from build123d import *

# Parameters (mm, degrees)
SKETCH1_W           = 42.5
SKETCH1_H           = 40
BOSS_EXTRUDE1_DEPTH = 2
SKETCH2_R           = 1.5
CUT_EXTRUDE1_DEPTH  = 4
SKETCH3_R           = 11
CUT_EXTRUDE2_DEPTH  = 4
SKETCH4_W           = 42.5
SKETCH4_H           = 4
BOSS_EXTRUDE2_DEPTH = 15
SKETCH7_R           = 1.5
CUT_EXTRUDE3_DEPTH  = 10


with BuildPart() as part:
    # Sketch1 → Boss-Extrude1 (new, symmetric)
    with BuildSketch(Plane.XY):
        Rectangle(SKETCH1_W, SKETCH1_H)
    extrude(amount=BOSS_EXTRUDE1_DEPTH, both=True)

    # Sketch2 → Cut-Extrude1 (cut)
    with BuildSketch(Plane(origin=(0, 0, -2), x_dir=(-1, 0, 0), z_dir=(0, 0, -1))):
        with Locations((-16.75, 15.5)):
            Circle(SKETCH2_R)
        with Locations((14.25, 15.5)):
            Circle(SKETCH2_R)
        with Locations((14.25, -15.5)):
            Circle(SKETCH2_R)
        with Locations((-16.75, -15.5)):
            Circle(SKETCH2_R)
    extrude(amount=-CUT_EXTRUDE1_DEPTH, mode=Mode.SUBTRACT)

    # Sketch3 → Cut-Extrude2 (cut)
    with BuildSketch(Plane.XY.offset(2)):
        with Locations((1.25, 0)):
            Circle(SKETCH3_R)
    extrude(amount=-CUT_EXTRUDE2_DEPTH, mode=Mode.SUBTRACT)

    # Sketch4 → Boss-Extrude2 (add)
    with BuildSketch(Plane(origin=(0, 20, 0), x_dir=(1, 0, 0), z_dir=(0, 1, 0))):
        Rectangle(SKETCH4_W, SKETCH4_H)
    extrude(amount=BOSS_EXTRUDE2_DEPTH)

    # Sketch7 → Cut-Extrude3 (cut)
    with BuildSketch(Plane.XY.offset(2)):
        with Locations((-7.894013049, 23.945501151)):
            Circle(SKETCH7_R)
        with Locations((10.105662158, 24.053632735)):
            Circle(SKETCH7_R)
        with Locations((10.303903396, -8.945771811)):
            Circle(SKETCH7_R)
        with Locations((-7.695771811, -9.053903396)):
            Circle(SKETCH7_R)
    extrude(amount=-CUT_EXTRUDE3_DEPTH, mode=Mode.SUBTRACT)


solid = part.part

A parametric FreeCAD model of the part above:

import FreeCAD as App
import Part
import Sketcher

V = App.Vector
Q = App.Units.Quantity


def add_polygon(sketch, points):
    """Adds a closed chain of lines whose ends are joined by coincident constraints."""
    first, n = sketch.GeometryCount, len(points)
    for a, b in zip(points, points[1:] + points[:1]):
        sketch.addGeometry(Part.LineSegment(App.Vector(*a, 0), App.Vector(*b, 0)), False)
    for i in range(n):
        sketch.addConstraint(Sketcher.Constraint("Coincident", first + i, 2, first + (i + 1) % n, 1))

doc = App.newDocument("Part")
body = doc.addObject("PartDesign::Body", "Body")

# Sketch on XY plane
sketch1 = doc.addObject("Sketcher::SketchObject", "Sketch")
body.addObject(sketch1)
sketch1.AttachmentSupport = (doc.XY_Plane, [""])
sketch1.MapMode = "FlatFace"
add_polygon(sketch1, [(-21.25, 20), (-21.25, -20), (21.25, -20), (21.25, 20)])  # lines 0-3
sketch1.addConstraint(Sketcher.Constraint("Vertical", 0))
sketch1.addConstraint(Sketcher.Constraint("Horizontal", 1))
sketch1.addConstraint(Sketcher.Constraint("Vertical", 2))
sketch1.addConstraint(Sketcher.Constraint("Horizontal", 3))
sketch1.addConstraint(Sketcher.Constraint("Symmetric", 0, 2, 2, 2, -1, 1))
sketch1.addConstraint(Sketcher.Constraint("DistanceY", 0, 2, 0, 1, Q("40 mm")))
sketch1.addConstraint(Sketcher.Constraint("DistanceX", 1, 1, 1, 2, Q("42.5 mm")))
pad1 = doc.addObject("PartDesign::Pad", "Pad")
body.addObject(pad1)
pad1.Profile = sketch1
pad1.Length = 4
pad1.Midplane = True

# Sketch on XY plane
sketch2 = doc.addObject("Sketcher::SketchObject", "Sketch001")
body.addObject(sketch2)
sketch2.AttachmentSupport = (doc.XY_Plane, [""])
sketch2.MapMode = "FlatFace"
sketch2.AttachmentOffset = App.Placement(V(0, 0, -2), App.Rotation())
sketch2.addGeometry(Part.Circle(V(16.75, 15.5, 0), V(0, 0, 1), 1.5), False)
sketch2.addGeometry(Part.Circle(V(-14.25, 15.5, 0), V(0, 0, 1), 1.5), False)
sketch2.addGeometry(Part.Circle(V(-14.25, -15.5, 0), V(0, 0, 1), 1.5), False)
sketch2.addGeometry(Part.Circle(V(16.75, -15.5, 0), V(0, 0, 1), 1.5), False)
sketch2.addConstraint(Sketcher.Constraint("Equal", 0, 1))
sketch2.addConstraint(Sketcher.Constraint("Equal", 1, 2))
sketch2.addConstraint(Sketcher.Constraint("Equal", 2, 3))
sketch2.addConstraint(Sketcher.Constraint("Symmetric", 1, 3, 2, 3, -1))
sketch2.addConstraint(Sketcher.Constraint("Symmetric", 0, 3, 3, 3, -1))
sketch2.addConstraint(Sketcher.Constraint("Horizontal", 0, 3, 1, 3))
sketch2.addConstraint(Sketcher.Constraint("Diameter", 0, Q("3 mm")))
sketch2.addConstraint(Sketcher.Constraint("DistanceX", 1, 3, 0, 3, Q("31 mm")))
sketch2.addConstraint(Sketcher.Constraint("DistanceY", 2, 3, 1, 3, Q("31 mm")))
sketch2.addConstraint(Sketcher.Constraint("DistanceX", -1, 1, 0, 3, Q("16.75 mm")))
pocket1 = doc.addObject("PartDesign::Pocket", "Pocket")
body.addObject(pocket1)
pocket1.Profile = sketch2
pocket1.Length = 4
pocket1.Reversed = True

# Sketch on XY plane
sketch3 = doc.addObject("Sketcher::SketchObject", "Sketch002")
body.addObject(sketch3)
sketch3.AttachmentSupport = (doc.XY_Plane, [""])
sketch3.MapMode = "FlatFace"
sketch3.AttachmentOffset = App.Placement(V(0, 0, 2), App.Rotation())
sketch3.addGeometry(Part.Circle(V(1.25, 0, 0), V(0, 0, 1), 11), False)
sketch3.addConstraint(Sketcher.Constraint("PointOnObject", 0, 3, -1))
sketch3.addConstraint(Sketcher.Constraint("Diameter", 0, Q("22 mm")))
sketch3.addConstraint(Sketcher.Constraint("DistanceX", -1, 1, 0, 3, Q("1.25 mm")))
pocket2 = doc.addObject("PartDesign::Pocket", "Pocket001")
body.addObject(pocket2)
pocket2.Profile = sketch3
pocket2.Length = 4

# Sketch on XZ plane
sketch4 = doc.addObject("Sketcher::SketchObject", "Sketch003")
body.addObject(sketch4)
sketch4.AttachmentSupport = (doc.XZ_Plane, [""])
sketch4.MapMode = "FlatFace"
sketch4.AttachmentOffset = App.Placement(V(0, 0, -20), App.Rotation())
add_polygon(sketch4, [(-21.25, -2), (-21.25, 2), (21.25, 2), (21.25, -2)])  # lines 0-3
sketch4.addConstraint(Sketcher.Constraint("Vertical", 0))
sketch4.addConstraint(Sketcher.Constraint("Horizontal", 1))
sketch4.addConstraint(Sketcher.Constraint("Vertical", 2))
sketch4.addConstraint(Sketcher.Constraint("Horizontal", 3))
sketch4.addConstraint(Sketcher.Constraint("Symmetric", 0, 2, 2, 2, -1, 1))
sketch4.addConstraint(Sketcher.Constraint("DistanceY", 0, 1, 0, 2, Q("4 mm")))
sketch4.addConstraint(Sketcher.Constraint("DistanceX", 1, 1, 1, 2, Q("42.5 mm")))
pad2 = doc.addObject("PartDesign::Pad", "Pad001")
body.addObject(pad2)
pad2.Profile = sketch4
pad2.Length = 15
pad2.Reversed = True

# Sketch on XY plane
sketch5 = doc.addObject("Sketcher::SketchObject", "Sketch004")
body.addObject(sketch5)
sketch5.AttachmentSupport = (doc.XY_Plane, [""])
sketch5.MapMode = "FlatFace"
sketch5.AttachmentOffset = App.Placement(V(0, 0, 2), App.Rotation())
sketch5.addGeometry(Part.Circle(V(-7.894013, 23.945501, 0), V(0, 0, 1), 1.5), False)
sketch5.addGeometry(Part.Circle(V(10.105662, 24.053633, 0), V(0, 0, 1), 1.5), False)
sketch5.addGeometry(Part.Circle(V(10.303903, -8.945772, 0), V(0, 0, 1), 1.5), False)
sketch5.addGeometry(Part.Circle(V(-7.695772, -9.053903, 0), V(0, 0, 1), 1.5), False)
sketch5.addConstraint(Sketcher.Constraint("Equal", 0, 1))
sketch5.addConstraint(Sketcher.Constraint("Equal", 1, 2))
sketch5.addConstraint(Sketcher.Constraint("Equal", 2, 3))
sketch5.addConstraint(Sketcher.Constraint("Diameter", 0, Q("3 mm")))
sketch5.addConstraint(Sketcher.Constraint("DistanceY", -1, 1, 0, 3, Q("23.945501 mm")))
sketch5.addConstraint(Sketcher.Constraint("DistanceY", 2, 3, -1, 1, Q("8.945772 mm")))
sketch5.addConstraint(Sketcher.Constraint("DistanceX", 3, 3, -1, 1, Q("7.695772 mm")))
sketch5.addConstraint(Sketcher.Constraint("DistanceY", 0, 3, 1, 3, Q("0.108132 mm")))
sketch5.addConstraint(Sketcher.Constraint("DistanceX", 1, 3, 2, 3, Q("0.198241 mm")))
sketch5.addConstraint(Sketcher.Constraint("DistanceY", 3, 3, 2, 3, Q("0.108132 mm")))
sketch5.addConstraint(Sketcher.Constraint("DistanceX", 0, 3, 3, 3, Q("0.198241 mm")))
sketch5.addConstraint(Sketcher.Constraint("DistanceX", -1, 1, 1, 3, Q("10.105662 mm")))
pocket3 = doc.addObject("PartDesign::Pocket", "Pocket002")
body.addObject(pocket3)
pocket3.Profile = sketch5
pocket3.Length = 10

doc.recompute()
